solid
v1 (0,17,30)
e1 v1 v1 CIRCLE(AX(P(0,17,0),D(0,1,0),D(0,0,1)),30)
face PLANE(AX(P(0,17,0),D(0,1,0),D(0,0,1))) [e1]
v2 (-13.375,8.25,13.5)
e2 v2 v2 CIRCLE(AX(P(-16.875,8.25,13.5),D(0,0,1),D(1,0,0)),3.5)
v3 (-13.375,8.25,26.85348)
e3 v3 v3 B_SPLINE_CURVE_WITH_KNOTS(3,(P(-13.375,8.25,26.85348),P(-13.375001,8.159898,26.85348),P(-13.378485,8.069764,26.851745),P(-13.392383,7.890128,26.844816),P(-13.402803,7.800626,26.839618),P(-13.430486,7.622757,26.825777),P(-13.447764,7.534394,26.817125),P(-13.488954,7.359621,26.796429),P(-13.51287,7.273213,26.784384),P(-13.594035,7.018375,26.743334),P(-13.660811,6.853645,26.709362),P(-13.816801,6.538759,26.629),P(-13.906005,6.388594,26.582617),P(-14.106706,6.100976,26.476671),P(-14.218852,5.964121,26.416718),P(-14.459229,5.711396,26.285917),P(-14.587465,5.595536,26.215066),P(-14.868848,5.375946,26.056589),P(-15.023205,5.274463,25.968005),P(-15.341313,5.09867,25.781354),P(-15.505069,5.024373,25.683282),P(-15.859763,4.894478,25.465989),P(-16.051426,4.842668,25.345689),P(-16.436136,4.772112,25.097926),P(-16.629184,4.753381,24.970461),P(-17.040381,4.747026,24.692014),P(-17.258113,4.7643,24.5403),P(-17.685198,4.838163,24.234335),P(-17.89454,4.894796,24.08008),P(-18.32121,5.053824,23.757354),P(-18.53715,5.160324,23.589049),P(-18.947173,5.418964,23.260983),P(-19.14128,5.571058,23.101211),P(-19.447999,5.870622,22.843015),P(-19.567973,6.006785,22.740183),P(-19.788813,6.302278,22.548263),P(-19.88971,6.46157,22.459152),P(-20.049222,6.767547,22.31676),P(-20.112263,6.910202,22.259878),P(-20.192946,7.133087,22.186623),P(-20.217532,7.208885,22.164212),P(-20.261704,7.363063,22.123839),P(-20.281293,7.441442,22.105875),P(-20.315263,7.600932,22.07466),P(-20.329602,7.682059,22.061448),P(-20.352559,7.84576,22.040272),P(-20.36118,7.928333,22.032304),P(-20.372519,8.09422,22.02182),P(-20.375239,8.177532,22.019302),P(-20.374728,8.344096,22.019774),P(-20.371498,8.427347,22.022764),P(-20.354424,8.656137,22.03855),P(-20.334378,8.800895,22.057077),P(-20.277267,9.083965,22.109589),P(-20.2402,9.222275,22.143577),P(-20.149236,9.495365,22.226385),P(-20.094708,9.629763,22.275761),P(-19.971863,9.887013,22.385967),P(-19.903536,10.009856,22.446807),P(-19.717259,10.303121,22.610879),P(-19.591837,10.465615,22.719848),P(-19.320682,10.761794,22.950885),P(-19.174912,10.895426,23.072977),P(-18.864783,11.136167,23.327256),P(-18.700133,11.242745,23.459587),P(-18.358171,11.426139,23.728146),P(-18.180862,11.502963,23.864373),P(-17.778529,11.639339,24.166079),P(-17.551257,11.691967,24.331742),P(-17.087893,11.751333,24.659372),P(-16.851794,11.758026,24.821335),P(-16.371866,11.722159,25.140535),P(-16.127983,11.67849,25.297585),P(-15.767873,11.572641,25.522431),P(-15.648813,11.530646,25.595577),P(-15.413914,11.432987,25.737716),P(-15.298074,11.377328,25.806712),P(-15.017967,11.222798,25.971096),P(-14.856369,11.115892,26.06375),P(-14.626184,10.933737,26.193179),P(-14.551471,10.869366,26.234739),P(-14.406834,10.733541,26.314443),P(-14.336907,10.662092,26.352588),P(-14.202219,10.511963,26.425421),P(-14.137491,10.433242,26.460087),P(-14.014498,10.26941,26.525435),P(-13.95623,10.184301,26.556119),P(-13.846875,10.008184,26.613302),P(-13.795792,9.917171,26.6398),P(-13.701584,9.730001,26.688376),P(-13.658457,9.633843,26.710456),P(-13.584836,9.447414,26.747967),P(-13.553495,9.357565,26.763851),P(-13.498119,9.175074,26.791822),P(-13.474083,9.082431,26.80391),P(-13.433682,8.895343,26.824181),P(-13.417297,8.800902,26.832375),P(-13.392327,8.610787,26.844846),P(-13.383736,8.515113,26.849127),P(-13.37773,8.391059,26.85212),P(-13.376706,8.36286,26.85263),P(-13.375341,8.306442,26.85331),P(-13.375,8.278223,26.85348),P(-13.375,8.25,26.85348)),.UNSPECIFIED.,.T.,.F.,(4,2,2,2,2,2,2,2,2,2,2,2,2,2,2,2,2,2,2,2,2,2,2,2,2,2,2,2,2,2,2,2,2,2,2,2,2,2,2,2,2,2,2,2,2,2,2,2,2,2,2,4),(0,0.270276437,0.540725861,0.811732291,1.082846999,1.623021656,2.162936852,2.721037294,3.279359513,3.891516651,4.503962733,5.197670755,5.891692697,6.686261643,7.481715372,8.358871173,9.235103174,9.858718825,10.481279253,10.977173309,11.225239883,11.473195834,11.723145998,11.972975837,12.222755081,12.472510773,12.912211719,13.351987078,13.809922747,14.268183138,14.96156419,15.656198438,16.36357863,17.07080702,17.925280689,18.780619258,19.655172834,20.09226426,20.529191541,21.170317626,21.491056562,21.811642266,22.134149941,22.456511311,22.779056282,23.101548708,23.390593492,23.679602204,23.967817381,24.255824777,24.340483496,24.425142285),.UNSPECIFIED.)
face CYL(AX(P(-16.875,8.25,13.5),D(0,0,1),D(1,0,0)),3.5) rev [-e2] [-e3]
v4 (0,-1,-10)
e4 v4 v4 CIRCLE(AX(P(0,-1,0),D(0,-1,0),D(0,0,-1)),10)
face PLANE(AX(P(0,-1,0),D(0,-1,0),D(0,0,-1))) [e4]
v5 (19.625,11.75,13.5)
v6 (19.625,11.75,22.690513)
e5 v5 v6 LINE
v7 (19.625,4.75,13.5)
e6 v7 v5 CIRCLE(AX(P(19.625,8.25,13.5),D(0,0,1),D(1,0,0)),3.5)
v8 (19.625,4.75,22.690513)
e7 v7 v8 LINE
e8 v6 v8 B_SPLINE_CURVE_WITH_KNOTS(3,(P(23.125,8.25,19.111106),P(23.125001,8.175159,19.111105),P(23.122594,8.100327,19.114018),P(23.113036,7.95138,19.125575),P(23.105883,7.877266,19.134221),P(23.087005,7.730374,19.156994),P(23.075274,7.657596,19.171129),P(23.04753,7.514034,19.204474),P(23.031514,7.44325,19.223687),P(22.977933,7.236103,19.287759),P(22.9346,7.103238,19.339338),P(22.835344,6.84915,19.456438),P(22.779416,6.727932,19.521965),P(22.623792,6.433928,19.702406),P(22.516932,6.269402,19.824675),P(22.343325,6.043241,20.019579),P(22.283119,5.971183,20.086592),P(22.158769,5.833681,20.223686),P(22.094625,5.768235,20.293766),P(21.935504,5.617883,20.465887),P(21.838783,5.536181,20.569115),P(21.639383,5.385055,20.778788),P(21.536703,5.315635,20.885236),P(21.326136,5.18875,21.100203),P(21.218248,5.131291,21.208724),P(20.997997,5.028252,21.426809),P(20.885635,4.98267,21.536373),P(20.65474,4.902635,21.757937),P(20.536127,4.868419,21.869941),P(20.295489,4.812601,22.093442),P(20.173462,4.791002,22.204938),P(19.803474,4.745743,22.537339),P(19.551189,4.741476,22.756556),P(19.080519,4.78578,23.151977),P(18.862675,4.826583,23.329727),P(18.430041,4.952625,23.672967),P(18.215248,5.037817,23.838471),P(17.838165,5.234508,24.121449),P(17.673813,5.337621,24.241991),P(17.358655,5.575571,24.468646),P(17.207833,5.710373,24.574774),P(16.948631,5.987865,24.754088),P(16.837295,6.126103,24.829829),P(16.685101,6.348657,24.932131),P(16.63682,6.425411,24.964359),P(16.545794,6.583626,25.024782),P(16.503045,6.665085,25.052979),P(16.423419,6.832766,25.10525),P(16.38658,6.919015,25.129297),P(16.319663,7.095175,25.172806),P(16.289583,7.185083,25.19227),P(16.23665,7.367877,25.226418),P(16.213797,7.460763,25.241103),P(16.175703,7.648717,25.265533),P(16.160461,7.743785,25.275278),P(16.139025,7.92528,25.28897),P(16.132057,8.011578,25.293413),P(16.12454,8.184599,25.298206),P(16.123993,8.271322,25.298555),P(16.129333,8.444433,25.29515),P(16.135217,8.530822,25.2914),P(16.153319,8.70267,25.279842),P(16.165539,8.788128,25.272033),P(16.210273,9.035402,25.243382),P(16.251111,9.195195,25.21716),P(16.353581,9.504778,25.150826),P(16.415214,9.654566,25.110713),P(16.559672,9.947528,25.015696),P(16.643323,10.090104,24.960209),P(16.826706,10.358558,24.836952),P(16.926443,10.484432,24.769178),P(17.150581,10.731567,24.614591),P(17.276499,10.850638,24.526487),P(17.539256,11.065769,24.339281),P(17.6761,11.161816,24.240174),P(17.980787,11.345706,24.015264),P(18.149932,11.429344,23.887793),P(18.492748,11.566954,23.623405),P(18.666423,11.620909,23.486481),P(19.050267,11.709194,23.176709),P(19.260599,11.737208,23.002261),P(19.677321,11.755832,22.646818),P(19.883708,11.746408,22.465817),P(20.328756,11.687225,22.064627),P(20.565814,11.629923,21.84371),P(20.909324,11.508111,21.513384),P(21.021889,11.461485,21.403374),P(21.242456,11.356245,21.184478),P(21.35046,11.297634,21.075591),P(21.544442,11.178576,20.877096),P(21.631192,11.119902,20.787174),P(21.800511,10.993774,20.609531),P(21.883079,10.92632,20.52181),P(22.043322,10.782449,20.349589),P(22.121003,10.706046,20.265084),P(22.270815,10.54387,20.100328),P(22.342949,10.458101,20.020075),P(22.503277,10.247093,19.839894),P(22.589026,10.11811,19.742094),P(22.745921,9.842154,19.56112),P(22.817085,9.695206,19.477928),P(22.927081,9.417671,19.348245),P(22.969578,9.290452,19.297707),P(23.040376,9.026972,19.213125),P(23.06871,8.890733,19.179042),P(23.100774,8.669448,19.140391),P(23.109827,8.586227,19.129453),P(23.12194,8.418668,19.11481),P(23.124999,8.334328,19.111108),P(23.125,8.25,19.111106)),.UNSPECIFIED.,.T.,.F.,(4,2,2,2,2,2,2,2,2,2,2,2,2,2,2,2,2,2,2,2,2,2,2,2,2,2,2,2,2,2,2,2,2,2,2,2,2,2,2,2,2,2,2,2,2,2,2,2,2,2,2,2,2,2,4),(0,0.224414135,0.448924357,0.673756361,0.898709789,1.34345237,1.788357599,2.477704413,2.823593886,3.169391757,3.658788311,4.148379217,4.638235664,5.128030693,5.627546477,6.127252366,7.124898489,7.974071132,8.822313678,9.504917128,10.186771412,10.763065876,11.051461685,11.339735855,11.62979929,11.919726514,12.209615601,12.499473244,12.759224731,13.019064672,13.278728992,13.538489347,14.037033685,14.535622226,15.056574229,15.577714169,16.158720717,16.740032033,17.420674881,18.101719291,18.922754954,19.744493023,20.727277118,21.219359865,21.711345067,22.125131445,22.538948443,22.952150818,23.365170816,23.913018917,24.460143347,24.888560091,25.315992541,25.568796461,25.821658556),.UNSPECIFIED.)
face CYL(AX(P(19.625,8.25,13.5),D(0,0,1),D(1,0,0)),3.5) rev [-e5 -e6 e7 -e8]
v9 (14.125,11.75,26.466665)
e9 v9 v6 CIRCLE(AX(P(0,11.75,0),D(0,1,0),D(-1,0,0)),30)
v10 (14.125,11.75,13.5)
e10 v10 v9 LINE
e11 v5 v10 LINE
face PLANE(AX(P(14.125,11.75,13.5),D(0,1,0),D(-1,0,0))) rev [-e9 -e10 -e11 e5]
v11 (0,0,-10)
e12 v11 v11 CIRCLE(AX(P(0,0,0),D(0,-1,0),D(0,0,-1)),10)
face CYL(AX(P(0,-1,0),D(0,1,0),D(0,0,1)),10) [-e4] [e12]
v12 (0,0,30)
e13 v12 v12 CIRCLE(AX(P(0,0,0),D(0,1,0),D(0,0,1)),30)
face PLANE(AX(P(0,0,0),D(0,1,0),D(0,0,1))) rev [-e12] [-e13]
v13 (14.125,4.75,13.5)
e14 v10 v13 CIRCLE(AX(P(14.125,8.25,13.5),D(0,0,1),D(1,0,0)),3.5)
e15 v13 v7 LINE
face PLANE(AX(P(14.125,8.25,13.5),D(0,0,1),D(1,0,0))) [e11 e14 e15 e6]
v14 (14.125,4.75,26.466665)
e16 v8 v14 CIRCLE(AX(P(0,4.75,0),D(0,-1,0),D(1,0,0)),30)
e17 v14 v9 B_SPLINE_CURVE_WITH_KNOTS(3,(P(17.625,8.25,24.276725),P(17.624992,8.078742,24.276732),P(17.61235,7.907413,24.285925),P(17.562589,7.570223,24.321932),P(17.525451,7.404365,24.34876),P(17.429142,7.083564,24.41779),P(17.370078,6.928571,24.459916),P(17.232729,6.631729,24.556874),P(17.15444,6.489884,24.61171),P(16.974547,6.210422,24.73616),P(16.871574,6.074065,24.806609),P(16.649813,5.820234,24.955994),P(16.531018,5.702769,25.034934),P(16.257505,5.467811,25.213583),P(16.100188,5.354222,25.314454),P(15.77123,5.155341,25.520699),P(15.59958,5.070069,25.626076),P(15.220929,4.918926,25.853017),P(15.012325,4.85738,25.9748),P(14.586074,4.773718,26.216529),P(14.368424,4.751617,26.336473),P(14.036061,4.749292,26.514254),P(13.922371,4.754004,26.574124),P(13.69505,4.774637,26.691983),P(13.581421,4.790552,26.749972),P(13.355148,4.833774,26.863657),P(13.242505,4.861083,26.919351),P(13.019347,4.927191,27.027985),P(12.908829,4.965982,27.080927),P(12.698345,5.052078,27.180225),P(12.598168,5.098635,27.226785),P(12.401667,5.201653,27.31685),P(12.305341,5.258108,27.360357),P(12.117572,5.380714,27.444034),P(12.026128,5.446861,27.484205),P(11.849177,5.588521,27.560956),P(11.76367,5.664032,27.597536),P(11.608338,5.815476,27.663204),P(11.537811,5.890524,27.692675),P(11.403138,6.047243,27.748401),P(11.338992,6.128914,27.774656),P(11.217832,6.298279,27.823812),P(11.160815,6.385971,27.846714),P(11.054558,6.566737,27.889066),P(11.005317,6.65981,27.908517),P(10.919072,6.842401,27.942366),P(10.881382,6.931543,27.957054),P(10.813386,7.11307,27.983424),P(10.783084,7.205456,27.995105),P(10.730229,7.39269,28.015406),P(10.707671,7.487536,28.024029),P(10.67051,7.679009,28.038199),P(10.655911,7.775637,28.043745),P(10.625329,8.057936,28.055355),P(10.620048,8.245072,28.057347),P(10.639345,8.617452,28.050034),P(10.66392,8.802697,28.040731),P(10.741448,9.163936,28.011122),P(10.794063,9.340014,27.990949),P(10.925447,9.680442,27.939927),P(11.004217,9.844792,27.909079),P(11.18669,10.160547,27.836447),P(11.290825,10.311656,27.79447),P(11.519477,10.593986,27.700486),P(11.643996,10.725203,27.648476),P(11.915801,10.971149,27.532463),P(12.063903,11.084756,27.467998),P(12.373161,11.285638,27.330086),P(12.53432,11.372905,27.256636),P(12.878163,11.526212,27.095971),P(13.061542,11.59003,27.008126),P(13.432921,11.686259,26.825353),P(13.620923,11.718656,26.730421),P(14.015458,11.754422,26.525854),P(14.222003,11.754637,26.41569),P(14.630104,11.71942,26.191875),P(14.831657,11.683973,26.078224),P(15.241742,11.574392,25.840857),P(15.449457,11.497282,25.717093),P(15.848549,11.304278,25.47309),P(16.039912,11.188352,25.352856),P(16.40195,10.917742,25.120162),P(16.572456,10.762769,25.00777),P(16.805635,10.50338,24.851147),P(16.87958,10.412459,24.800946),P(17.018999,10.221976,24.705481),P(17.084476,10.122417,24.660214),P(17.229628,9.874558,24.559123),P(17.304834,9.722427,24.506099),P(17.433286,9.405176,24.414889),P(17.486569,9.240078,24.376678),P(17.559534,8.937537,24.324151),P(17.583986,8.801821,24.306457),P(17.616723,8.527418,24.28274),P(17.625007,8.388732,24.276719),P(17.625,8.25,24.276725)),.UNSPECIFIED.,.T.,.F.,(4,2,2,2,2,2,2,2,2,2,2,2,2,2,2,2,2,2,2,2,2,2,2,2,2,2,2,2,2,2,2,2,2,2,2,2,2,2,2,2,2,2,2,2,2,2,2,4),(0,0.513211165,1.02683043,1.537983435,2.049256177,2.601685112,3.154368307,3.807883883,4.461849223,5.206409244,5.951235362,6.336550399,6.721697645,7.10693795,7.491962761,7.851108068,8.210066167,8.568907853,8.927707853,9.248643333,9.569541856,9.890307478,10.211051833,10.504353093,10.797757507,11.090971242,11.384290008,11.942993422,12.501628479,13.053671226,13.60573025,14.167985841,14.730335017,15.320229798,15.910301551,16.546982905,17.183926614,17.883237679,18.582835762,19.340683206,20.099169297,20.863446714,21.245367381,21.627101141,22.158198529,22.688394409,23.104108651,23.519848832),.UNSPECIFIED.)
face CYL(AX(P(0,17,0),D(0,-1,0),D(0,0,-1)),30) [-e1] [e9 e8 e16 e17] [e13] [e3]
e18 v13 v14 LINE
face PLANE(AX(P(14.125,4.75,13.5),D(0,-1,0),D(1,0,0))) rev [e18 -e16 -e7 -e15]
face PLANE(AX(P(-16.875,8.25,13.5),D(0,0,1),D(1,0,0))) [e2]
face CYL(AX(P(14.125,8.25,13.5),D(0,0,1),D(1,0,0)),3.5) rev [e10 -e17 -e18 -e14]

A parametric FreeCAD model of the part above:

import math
import FreeCAD as App
import Part
import Sketcher

doc = App.newDocument("Part")
body = doc.addObject("PartDesign::Body", "Body")

sketch1 = doc.addObject("Sketcher::SketchObject", "Sketch")
body.addObject(sketch1)
sketch1.AttachmentSupport = (doc.XZ_Plane, [""])
sketch1.MapMode = "FlatFace"
sketch1.addGeometry(Part.Circle(App.Vector(0, 0, 0), App.Vector(0, 0, 1), 30), False)
sketch1.addConstraint(Sketcher.Constraint("Coincident", 0, 3, -1, 1))
sketch1.addConstraint(Sketcher.Constraint("Diameter", 0, 60.0))
pad1 = doc.addObject("PartDesign::Pad", "Pad")
body.addObject(pad1)
pad1.Profile = sketch1
pad1.Length = 17
pad1.Reversed = True

sketch2 = doc.addObject("Sketcher::SketchObject", "Sketch001")
body.addObject(sketch2)
sketch2.AttachmentSupport = (doc.XY_Plane, [""])
sketch2.MapMode = "FlatFace"
sketch2.AttachmentOffset = App.Placement(App.Vector(0, 0, 30), App.Rotation())
sketch2.addGeometry(Part.Circle(App.Vector(-16.9, 8.2, 0), App.Vector(0, 0, 1), 3.5), False)
sketch2.addGeometry(Part.LineSegment(App.Vector(19.6, 11.8, 0), App.Vector(14.1, 11.8, 0)), False)
sketch2.addGeometry(Part.ArcOfCircle(Part.Circle(App.Vector(14.1, 8.2, 0), App.Vector(0, 0, 1), 3.5), math.radians(90), math.radians(270)), False)
sketch2.addGeometry(Part.LineSegment(App.Vector(14.1, 4.8, 0), App.Vector(19.6, 4.8, 0)), False)
sketch2.addGeometry(Part.ArcOfCircle(Part.Circle(App.Vector(19.6, 8.2, 0), App.Vector(0, 0, 1), 3.5), math.radians(-90), math.radians(90)), False)
sketch2.addConstraint(Sketcher.Constraint("Tangent", 1, 2, 2, 1))
sketch2.addConstraint(Sketcher.Constraint("Tangent", 2, 2, 3, 1))
sketch2.addConstraint(Sketcher.Constraint("Tangent", 3, 2, 4, 1))
sketch2.addConstraint(Sketcher.Constraint("Tangent", 4, 2, 1, 1))
sketch2.addConstraint(Sketcher.Constraint("Horizontal", 1))
sketch2.addConstraint(Sketcher.Constraint("Horizontal", 3))
sketch2.addConstraint(Sketcher.Constraint("Equal", 0, 2))
sketch2.addConstraint(Sketcher.Constraint("Horizontal", 0, 3, 2, 3))
sketch2.addConstraint(Sketcher.Constraint("Diameter", 0, 7.0))
sketch2.addConstraint(Sketcher.Constraint("DistanceX", 1, 2, 1, 1, 5.5))
sketch2.addConstraint(Sketcher.Constraint("DistanceX", 0, 3, 2, 3, 31.0))
sketch2.addConstraint(Sketcher.Constraint("DistanceY", -1, 1, 0, 3, 8.25))
sketch2.addConstraint(Sketcher.Constraint("DistanceX", 0, 3, -1, 1, 16.875))
pocket1 = doc.addObject("PartDesign::Pocket", "Pocket")
body.addObject(pocket1)
pocket1.Profile = sketch2
pocket1.Length = 16.5

sketch3 = doc.addObject("Sketcher::SketchObject", "Sketch002")
body.addObject(sketch3)
sketch3.AttachmentSupport = (doc.XZ_Plane, [""])
sketch3.MapMode = "FlatFace"
sketch3.addGeometry(Part.Circle(App.Vector(0, 0, 0), App.Vector(0, 0, 1), 10), False)
sketch3.addConstraint(Sketcher.Constraint("Coincident", 0, 3, -1, 1))
sketch3.addConstraint(Sketcher.Constraint("Diameter", 0, 20.0))
pad2 = doc.addObject("PartDesign::Pad", "Pad001")
body.addObject(pad2)
pad2.Profile = sketch3
pad2.Length = 1

doc.recompute()
